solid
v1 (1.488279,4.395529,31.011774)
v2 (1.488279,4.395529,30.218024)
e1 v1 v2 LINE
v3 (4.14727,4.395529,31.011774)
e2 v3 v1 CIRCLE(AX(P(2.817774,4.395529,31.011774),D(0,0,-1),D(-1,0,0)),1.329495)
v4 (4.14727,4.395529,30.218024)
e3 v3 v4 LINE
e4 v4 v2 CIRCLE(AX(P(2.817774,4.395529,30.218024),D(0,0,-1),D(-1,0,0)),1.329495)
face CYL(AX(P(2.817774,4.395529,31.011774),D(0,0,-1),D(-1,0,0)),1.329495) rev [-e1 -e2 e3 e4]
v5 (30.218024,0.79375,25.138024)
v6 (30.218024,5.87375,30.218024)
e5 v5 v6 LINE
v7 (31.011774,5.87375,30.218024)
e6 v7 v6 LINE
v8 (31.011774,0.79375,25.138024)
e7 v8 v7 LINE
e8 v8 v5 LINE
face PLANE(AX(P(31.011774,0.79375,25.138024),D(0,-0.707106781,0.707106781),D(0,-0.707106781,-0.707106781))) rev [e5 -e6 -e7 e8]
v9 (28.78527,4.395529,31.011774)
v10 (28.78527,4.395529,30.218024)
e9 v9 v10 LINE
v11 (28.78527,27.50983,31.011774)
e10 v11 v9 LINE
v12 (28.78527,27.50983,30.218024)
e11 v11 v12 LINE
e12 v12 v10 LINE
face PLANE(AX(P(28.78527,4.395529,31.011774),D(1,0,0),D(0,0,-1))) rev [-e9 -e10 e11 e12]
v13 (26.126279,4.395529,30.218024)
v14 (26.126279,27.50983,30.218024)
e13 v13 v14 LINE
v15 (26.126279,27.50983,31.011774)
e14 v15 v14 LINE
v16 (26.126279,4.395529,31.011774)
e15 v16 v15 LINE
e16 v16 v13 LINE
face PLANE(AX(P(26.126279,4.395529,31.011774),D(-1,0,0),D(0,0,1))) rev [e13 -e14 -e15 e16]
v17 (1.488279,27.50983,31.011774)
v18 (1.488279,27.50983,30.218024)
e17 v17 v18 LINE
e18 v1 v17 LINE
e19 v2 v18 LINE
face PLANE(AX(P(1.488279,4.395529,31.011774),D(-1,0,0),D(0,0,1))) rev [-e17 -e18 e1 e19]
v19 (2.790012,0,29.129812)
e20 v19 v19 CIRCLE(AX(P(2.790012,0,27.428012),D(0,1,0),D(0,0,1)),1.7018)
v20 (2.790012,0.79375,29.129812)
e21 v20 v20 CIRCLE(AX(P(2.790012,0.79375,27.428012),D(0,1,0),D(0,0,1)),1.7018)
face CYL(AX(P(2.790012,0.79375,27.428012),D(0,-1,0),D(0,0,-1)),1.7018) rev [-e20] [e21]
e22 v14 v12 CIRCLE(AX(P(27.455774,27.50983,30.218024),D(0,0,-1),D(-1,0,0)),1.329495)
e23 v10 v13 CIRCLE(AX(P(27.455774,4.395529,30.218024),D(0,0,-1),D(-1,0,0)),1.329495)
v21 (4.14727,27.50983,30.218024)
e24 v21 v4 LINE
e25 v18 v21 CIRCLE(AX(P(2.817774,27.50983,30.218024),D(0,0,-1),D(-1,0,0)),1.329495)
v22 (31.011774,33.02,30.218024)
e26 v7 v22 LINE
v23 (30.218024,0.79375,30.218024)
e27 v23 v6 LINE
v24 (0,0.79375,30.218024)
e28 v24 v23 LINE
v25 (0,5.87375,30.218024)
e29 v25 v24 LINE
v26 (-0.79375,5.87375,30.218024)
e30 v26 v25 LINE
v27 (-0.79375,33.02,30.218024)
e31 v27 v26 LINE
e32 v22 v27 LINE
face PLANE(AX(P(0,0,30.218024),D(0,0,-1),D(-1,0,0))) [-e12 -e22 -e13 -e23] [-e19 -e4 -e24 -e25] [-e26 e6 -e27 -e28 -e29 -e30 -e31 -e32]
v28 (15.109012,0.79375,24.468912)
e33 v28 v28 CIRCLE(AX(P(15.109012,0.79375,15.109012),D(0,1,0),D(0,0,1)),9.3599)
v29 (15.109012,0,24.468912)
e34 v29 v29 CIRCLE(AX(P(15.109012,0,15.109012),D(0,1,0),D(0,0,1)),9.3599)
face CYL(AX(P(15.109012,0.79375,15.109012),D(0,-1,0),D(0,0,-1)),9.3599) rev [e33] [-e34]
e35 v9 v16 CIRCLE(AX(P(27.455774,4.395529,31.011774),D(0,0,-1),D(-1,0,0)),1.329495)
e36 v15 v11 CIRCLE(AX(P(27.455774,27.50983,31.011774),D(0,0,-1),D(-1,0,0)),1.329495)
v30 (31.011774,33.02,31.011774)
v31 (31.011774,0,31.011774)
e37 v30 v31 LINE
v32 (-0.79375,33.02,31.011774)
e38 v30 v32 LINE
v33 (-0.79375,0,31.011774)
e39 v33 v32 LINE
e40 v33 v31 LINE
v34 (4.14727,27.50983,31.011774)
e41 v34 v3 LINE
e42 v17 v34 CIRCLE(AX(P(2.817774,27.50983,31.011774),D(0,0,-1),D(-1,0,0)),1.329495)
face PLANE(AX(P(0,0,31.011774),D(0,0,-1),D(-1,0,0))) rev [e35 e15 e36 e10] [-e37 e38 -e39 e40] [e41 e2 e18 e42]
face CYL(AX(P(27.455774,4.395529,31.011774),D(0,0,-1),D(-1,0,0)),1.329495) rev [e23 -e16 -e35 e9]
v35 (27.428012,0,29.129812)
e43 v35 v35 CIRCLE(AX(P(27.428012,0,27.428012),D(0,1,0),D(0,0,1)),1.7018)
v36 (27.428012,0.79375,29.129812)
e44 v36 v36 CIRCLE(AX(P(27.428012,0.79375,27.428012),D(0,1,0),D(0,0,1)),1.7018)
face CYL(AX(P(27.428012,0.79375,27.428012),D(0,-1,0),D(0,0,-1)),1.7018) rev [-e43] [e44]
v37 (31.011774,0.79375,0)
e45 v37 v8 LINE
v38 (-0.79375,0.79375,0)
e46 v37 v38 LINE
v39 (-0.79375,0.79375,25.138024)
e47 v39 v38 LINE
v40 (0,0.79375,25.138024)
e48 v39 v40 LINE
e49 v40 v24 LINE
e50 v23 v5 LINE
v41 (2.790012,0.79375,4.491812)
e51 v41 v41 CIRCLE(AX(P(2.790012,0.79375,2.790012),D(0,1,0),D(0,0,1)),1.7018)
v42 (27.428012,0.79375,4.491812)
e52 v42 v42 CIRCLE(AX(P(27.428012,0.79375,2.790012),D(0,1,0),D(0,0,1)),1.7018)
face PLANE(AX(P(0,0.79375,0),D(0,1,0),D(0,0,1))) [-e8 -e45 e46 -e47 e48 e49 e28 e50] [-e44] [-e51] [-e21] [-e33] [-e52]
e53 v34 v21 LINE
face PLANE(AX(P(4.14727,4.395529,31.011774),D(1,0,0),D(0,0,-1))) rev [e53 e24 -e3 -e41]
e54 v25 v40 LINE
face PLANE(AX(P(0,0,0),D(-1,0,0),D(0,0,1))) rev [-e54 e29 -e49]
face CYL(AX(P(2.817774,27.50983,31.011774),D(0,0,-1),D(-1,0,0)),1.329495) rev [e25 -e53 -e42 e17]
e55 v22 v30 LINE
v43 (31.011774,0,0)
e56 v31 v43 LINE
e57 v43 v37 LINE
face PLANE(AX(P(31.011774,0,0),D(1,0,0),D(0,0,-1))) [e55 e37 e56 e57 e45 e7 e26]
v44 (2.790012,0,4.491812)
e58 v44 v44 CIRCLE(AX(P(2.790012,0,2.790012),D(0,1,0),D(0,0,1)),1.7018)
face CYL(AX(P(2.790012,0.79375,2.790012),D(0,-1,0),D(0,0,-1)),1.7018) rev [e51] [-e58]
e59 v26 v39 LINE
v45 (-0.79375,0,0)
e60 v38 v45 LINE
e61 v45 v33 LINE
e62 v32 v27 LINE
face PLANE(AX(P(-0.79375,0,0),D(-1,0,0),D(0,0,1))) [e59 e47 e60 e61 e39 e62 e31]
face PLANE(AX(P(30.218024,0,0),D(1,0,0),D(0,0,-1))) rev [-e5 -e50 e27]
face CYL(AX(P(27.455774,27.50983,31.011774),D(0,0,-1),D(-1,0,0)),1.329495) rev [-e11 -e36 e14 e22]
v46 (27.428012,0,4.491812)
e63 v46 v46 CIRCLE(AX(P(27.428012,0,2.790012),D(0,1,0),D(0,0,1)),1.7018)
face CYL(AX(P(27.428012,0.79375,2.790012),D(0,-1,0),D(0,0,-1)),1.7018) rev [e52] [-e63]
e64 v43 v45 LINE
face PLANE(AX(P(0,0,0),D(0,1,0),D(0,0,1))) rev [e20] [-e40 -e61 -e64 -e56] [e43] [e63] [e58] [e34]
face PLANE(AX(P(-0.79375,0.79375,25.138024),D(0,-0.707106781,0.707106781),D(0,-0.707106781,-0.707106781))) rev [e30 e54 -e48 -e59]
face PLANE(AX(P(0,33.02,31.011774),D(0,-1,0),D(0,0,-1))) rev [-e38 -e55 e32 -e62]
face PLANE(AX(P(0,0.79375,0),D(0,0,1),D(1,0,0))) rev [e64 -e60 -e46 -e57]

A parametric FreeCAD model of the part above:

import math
import FreeCAD as App
import Part
import Sketcher

V = App.Vector
Q = App.Units.Quantity

doc = App.newDocument("Part")
params = doc.addObject("Spreadsheet::Sheet", "Params")
for row, (alias, value) in enumerate([
    ("sketch1_diameter", "0.134 in"),
    ("sketch1_diameter2", "0.737 in"),
    ("pad1_length", "0.03125 in"),
    ("sketch2_height", "1.3 in"),
    ("pad2_length", "0.03125 in"),
    ("sketch3_width", "1.3 in"),
    ("sketch3_width2", "0.03125 in"),
    ("pad3_length", "0.03125 in"),
    ("sketch4_width", "1.3 in"),
    ("sketch4_width2", "0.03125 in"),
    ("pad4_length", "0.03125 in"),
], start=1):
    params.set(f"A{row}", alias)
    params.set(f"B{row}", "=" + value)
    params.setAlias(f"B{row}", alias)

body = doc.addObject("PartDesign::Body", "Body")

# Sketch on XZ plane
sketch1 = doc.addObject("Sketcher::SketchObject", "Sketch")
body.addObject(sketch1)
sketch1.AttachmentSupport = (doc.XZ_Plane, [""])
sketch1.MapMode = "FlatFace"
sketch1.addGeometry([
    Part.LineSegment(V(0, 0, 0), V(0, 30.218024, 0)),  # 0
    Part.LineSegment(V(0, 30.218024, 0), V(30.218024, 30.218024, 0)),  # 1
    Part.LineSegment(V(30.218024, 30.218024, 0), V(30.218024, 0, 0)),  # 2
    Part.LineSegment(V(30.218024, 0, 0), V(0, 0, 0)),  # 3
    Part.Circle(V(2.790012, 27.428012, 0), V(0, 0, 1), 1.7018),  # 4
    Part.Circle(V(15.109012, 15.109012, 0), V(0, 0, 1), 9.3599),  # 5
    Part.Circle(V(27.428012, 27.428012, 0), V(0, 0, 1), 1.7018),  # 6
    Part.Circle(V(2.790012, 2.790012, 0), V(0, 0, 1), 1.7018),  # 7
    Part.Circle(V(27.428012, 2.790012, 0), V(0, 0, 1), 1.7018),  # 8
], False)
sketch1.addConstraint([
    Sketcher.Constraint("Coincident", 0, 2, 1, 1),
    Sketcher.Constraint("Coincident", 1, 2, 2, 1),
    Sketcher.Constraint("Coincident", 2, 2, 3, 1),
    Sketcher.Constraint("Coincident", 3, 2, 0, 1),
    Sketcher.Constraint("Vertical", 0),
    Sketcher.Constraint("Horizontal", 1),
    Sketcher.Constraint("Vertical", 2),
    Sketcher.Constraint("Horizontal", 3),
    Sketcher.Constraint("Coincident", 3, 2, -1, 1),
    Sketcher.Constraint("Equal", 4, 6),
    Sketcher.Constraint("Equal", 6, 7),
    Sketcher.Constraint("Equal", 7, 8),
    Sketcher.Constraint("Horizontal", 4, 3, 6, 3),
    Sketcher.Constraint("Horizontal", 7, 3, 8, 3),
    Sketcher.Constraint("Vertical", 4, 3, 7, 3),
    Sketcher.Constraint("Vertical", 6, 3, 8, 3),
    Sketcher.Constraint("Equal", 3, 0),
    Sketcher.Constraint("Diameter", 4, Q("0.134 in")),
    Sketcher.Constraint("Diameter", 5, Q("0.737 in")),
    Sketcher.Constraint("DistanceX", 4, 3, 6, 3, Q("0.97 in")),
    Sketcher.Constraint("DistanceY", 7, 3, 4, 3, Q("0.97 in")),
    Sketcher.Constraint("DistanceX", 4, 3, 5, 3, Q("0.485 in")),
    Sketcher.Constraint("DistanceY", 5, 3, 4, 3, Q("0.485 in")),
    Sketcher.Constraint("DistanceX", 1, 1, 1, 2, 30.218024),
    Sketcher.Constraint("DistanceX", -1, 1, 4, 3, 2.790012),
    Sketcher.Constraint("DistanceY", -1, 1, 4, 3, 27.428012),
])
sketch1.setExpression("Constraints[17]", "Params.sketch1_diameter")
sketch1.setExpression("Constraints[18]", "Params.sketch1_diameter2")
pad1 = doc.addObject("PartDesign::Pad", "Pad")
body.addObject(pad1)
pad1.Profile = sketch1
pad1.setExpression("Length", "Params.pad1_length")
pad1.Reversed = True

# Sketch on XY plane
sketch2 = doc.addObject("Sketcher::SketchObject", "Sketch001")
body.addObject(sketch2)
sketch2.AttachmentSupport = (doc.XY_Plane, [""])
sketch2.MapMode = "FlatFace"
sketch2.AttachmentOffset = App.Placement(V(0, 0, 30.218024), App.Rotation())
sketch2.addGeometry([
    Part.LineSegment(V(0, 33.02, 0), V(0, 0, 0)),
    Part.LineSegment(V(0, 0, 0), V(30.218024, 0, 0)),
    Part.LineSegment(V(30.218024, 0, 0), V(30.218024, 33.02, 0)),
    Part.LineSegment(V(30.218024, 33.02, 0), V(0, 33.02, 0)),
], False)
sketch2.addConstraint([
    Sketcher.Constraint("Coincident", 0, 2, 1, 1),
    Sketcher.Constraint("Coincident", 1, 2, 2, 1),
    Sketcher.Constraint("Coincident", 2, 2, 3, 1),
    Sketcher.Constraint("Coincident", 3, 2, 0, 1),
    Sketcher.Constraint("Vertical", 0),
    Sketcher.Constraint("Horizontal", 1),
    Sketcher.Constraint("Vertical", 2),
    Sketcher.Constraint("Horizontal", 3),
    Sketcher.Constraint("Coincident", 0, 2, -1, 1),
    Sketcher.Constraint("DistanceY", 0, 2, 0, 1, Q("1.3 in")),
    Sketcher.Constraint("DistanceX", 1, 1, 1, 2, 30.218024),
])
sketch2.setExpression("Constraints[9]", "Params.sketch2_height")
pad2 = doc.addObject("PartDesign::Pad", "Pad001")
body.addObject(pad2)
pad2.Profile = sketch2
pad2.setExpression("Length", "Params.pad2_length")

# Sketch on YZ plane
sketch3 = doc.addObject("Sketcher::SketchObject", "Sketch002")
body.addObject(sketch3)
sketch3.AttachmentSupport = (doc.YZ_Plane, [""])
sketch3.MapMode = "FlatFace"
sketch3.AttachmentOffset = App.Placement(V(0, 0, 30.218024), App.Rotation())
sketch3.addGeometry([
    Part.LineSegment(V(0.79375, 25.138024, 0), V(5.87375, 30.218024, 0)),  # 0
    Part.LineSegment(V(5.87375, 30.218024, 0), V(33.02, 30.218024, 0)),  # 1
    Part.LineSegment(V(33.02, 30.218024, 0), V(33.02, 31.011774, 0)),  # 2
    Part.LineSegment(V(33.02, 31.011774, 0), V(0, 31.011774, 0)),  # 3
    Part.LineSegment(V(0, 31.011774, 0), V(0, 0, 0)),  # 4
    Part.LineSegment(V(0, 0, 0), V(0.79375, 0, 0)),  # 5
    Part.LineSegment(V(0.79375, 0, 0), V(0.79375, 25.138024, 0)),  # 6
], False)
sketch3.addConstraint([
    Sketcher.Constraint("Coincident", 0, 2, 1, 1),
    Sketcher.Constraint("Coincident", 1, 2, 2, 1),
    Sketcher.Constraint("Coincident", 2, 2, 3, 1),
    Sketcher.Constraint("Coincident", 3, 2, 4, 1),
    Sketcher.Constraint("Coincident", 4, 2, 5, 1),
    Sketcher.Constraint("Coincident", 5, 2, 6, 1),
    Sketcher.Constraint("Coincident", 6, 2, 0, 1),
    Sketcher.Constraint("Horizontal", 1),
    Sketcher.Constraint("Vertical", 2),
    Sketcher.Constraint("Horizontal", 3),
    Sketcher.Constraint("Vertical", 4),
    Sketcher.Constraint("Horizontal", 5),
    Sketcher.Constraint("Vertical", 6),
    Sketcher.Constraint("Coincident", 4, 2, -1, 1),
    Sketcher.Constraint("Equal", 5, 2),
    Sketcher.Constraint("DistanceX", 3, 2, 3, 1, Q("1.3 in")),
    Sketcher.Constraint("Angle", 0, Q("45 deg")),
    Sketcher.Constraint("DistanceX", 5, 2, 0, 2, Q("0.2 in")),
    Sketcher.Constraint("DistanceX", 5, 1, 5, 2, Q("0.03125 in")),
    Sketcher.Constraint("DistanceY", 4, 2, 4, 1, 31.011774),
])
sketch3.setExpression("Constraints[15]", "Params.sketch3_width")
sketch3.setExpression("Constraints[18]", "Params.sketch3_width2")
pad3 = doc.addObject("PartDesign::Pad", "Pad002")
body.addObject(pad3)
pad3.Profile = sketch3
pad3.setExpression("Length", "Params.pad3_length")

# Sketch on YZ plane
sketch4 = doc.addObject("Sketcher::SketchObject", "Sketch003")
body.addObject(sketch4)
sketch4.AttachmentSupport = (doc.YZ_Plane, [""])
sketch4.MapMode = "FlatFace"
sketch4.addGeometry([
    Part.LineSegment(V(5.87375, 30.218024, 0), V(0.79375, 25.138024, 0)),  # 0
    Part.LineSegment(V(0.79375, 25.138024, 0), V(0.79375, 0, 0)),  # 1
    Part.LineSegment(V(0.79375, 0, 0), V(0, 0, 0)),  # 2
    Part.LineSegment(V(0, 0, 0), V(0, 31.011774, 0)),  # 3
    Part.LineSegment(V(0, 31.011774, 0), V(33.02, 31.011774, 0)),  # 4
    Part.LineSegment(V(33.02, 31.011774, 0), V(33.02, 30.218024, 0)),  # 5
    Part.LineSegment(V(33.02, 30.218024, 0), V(5.87375, 30.218024, 0)),  # 6
], False)
sketch4.addConstraint([
    Sketcher.Constraint("Coincident", 0, 2, 1, 1),
    Sketcher.Constraint("Coincident", 1, 2, 2, 1),
    Sketcher.Constraint("Coincident", 2, 2, 3, 1),
    Sketcher.Constraint("Coincident", 3, 2, 4, 1),
    Sketcher.Constraint("Coincident", 4, 2, 5, 1),
    Sketcher.Constraint("Coincident", 5, 2, 6, 1),
    Sketcher.Constraint("Coincident", 6, 2, 0, 1),
    Sketcher.Constraint("Vertical", 1),
    Sketcher.Constraint("Horizontal", 2),
    Sketcher.Constraint("Vertical", 3),
    Sketcher.Constraint("Horizontal", 4),
    Sketcher.Constraint("Vertical", 5),
    Sketcher.Constraint("Horizontal", 6),
    Sketcher.Constraint("Coincident", 2, 2, -1, 1),
    Sketcher.Constraint("Equal", 2, 5),
    Sketcher.Constraint("DistanceX", 4, 1, 4, 2, Q("1.3 in")),
    Sketcher.Constraint("Angle", 0, Q("-135 deg")),
    Sketcher.Constraint("DistanceY", 0, 2, 5, 2, Q("0.2 in")),
    Sketcher.Constraint("DistanceX", 2, 2, 2, 1, Q("0.03125 in")),
    Sketcher.Constraint("DistanceY", 1, 2, 1, 1, 25.138024),
])
sketch4.setExpression("Constraints[15]", "Params.sketch4_width")
sketch4.setExpression("Constraints[18]", "Params.sketch4_width2")
pad4 = doc.addObject("PartDesign::Pad", "Pad003")
body.addObject(pad4)
pad4.Profile = sketch4
pad4.setExpression("Length", "Params.pad4_length")
pad4.Reversed = True

# Sketch on XY plane
sketch5 = doc.addObject("Sketcher::SketchObject", "Sketch004")
body.addObject(sketch5)
sketch5.AttachmentSupport = (doc.XY_Plane, [""])
sketch5.MapMode = "FlatFace"
sketch5.AttachmentOffset = App.Placement(V(0, 0, 30.218024), App.Rotation())
sketch5.addGeometry([
    Part.LineSegment(V(4.14727, 27.50983, 0), V(4.14727, 4.395529, 0)),  # 0
    Part.ArcOfCircle(Part.Circle(V(2.817774, 4.395529, 0), V(0, 0, 1), 1.329495), math.radians(180), math.radians(360)),  # 1
    Part.LineSegment(V(1.488279, 4.395529, 0), V(1.488279, 27.50983, 0)),  # 2
    Part.ArcOfCircle(Part.Circle(V(2.817774, 27.50983, 0), V(0, 0, 1), 1.329495), math.radians(0), math.radians(180)),  # 3
    Part.LineSegment(V(28.78527, 27.50983, 0), V(28.78527, 4.395529, 0)),  # 4
    Part.ArcOfCircle(Part.Circle(V(27.455774, 4.395529, 0), V(0, 0, 1), 1.329495), math.radians(180), math.radians(360)),  # 5
    Part.LineSegment(V(26.126279, 4.395529, 0), V(26.126279, 27.50983, 0)),  # 6
    Part.ArcOfCircle(Part.Circle(V(27.455774, 27.50983, 0), V(0, 0, 1), 1.329495), math.radians(0), math.radians(180)),  # 7
], False)
sketch5.addConstraint([
    Sketcher.Constraint("Tangent", 0, 2, 1, 2),
    Sketcher.Constraint("Tangent", 1, 1, 2, 1),
    Sketcher.Constraint("Tangent", 2, 2, 3, 2),
    Sketcher.Constraint("Tangent", 3, 1, 0, 1),
    Sketcher.Constraint("Tangent", 4, 2, 5, 2),
    Sketcher.Constraint("Tangent", 5, 1, 6, 1),
    Sketcher.Constraint("Tangent", 6, 2, 7, 2),
    Sketcher.Constraint("Tangent", 7, 1, 4, 1),
    Sketcher.Constraint("Vertical", 0),
    Sketcher.Constraint("Vertical", 2),
    Sketcher.Constraint("Vertical", 4),
    Sketcher.Constraint("Vertical", 6),
    Sketcher.Constraint("Equal", 3, 5),
    Sketcher.Constraint("Horizontal", 1, 3, 5, 3),
    Sketcher.Constraint("Horizontal", 3, 3, 7, 3),
    Sketcher.Constraint("DistanceX", 1, 3, 5, 3, Q("0.97 in")),
    Sketcher.Constraint("DistanceY", 0, 2, 0, 1, 23.114302),
    Sketcher.Constraint("Radius", 1, 1.329495),
    Sketcher.Constraint("DistanceY", -1, 1, 1, 3, 4.395529),
    Sketcher.Constraint("DistanceX", -1, 1, 0, 2, 4.14727),
])
pocket1 = doc.addObject("PartDesign::Pocket", "Pocket")
body.addObject(pocket1)
pocket1.Profile = sketch5
pocket1.Type = "ThroughAll"
pocket1.Reversed = True

doc.recompute()
